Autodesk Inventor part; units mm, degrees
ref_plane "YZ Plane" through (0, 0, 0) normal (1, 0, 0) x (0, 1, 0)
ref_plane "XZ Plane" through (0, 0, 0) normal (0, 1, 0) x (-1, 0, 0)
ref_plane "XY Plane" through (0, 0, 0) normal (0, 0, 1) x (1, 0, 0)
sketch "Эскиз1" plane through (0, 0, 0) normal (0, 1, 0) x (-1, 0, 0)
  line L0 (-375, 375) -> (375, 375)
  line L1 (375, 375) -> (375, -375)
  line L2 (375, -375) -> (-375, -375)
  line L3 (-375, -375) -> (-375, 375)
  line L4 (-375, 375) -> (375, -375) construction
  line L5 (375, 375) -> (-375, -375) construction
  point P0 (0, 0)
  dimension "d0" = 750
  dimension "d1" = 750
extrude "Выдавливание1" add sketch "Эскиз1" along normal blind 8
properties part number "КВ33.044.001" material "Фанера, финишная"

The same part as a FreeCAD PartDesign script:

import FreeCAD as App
import Part
import Sketcher
Q = App.Units.Quantity

doc = App.newDocument("Part")
body = doc.addObject("PartDesign::Body", "Body")

sketch1 = body.newObject("Sketcher::SketchObject", "Sketch")
sketch1.AttachmentSupport = (doc.getObject("XZ_Plane"), [""])
sketch1.MapMode = "FlatFace"
sketch1.addGeometry([
    Part.LineSegment(App.Vector(-375, 375, 0), App.Vector(375, 375, 0)),
    Part.LineSegment(App.Vector(375, 375, 0), App.Vector(375, -375, 0)),
    Part.LineSegment(App.Vector(375, -375, 0), App.Vector(-375, -375, 0)),
    Part.LineSegment(App.Vector(-375, -375, 0), App.Vector(-375, 375, 0)),
], False)
sketch1.addConstraint([
    Sketcher.Constraint("Coincident", 0, 2, 1, 1),
    Sketcher.Constraint("Coincident", 1, 2, 2, 1),
    Sketcher.Constraint("Coincident", 2, 2, 3, 1),
    Sketcher.Constraint("Coincident", 3, 2, 0, 1),
    Sketcher.Constraint("Horizontal", 0),
    Sketcher.Constraint("Vertical", 1),
    Sketcher.Constraint("Horizontal", 2),
    Sketcher.Constraint("Vertical", 3),
    Sketcher.Constraint("Symmetric", 0, 2, 2, 2, -1, 1),
    Sketcher.Constraint("Equal", 2, 1),
    Sketcher.Constraint("DistanceX", 0, 1, 0, 2, Q("750 mm")),
])
pad1 = body.newObject("PartDesign::Pad", "Pad")
pad1.Profile = sketch1
pad1.Length = 8
pad1.Reversed = True

doc.recompute()
